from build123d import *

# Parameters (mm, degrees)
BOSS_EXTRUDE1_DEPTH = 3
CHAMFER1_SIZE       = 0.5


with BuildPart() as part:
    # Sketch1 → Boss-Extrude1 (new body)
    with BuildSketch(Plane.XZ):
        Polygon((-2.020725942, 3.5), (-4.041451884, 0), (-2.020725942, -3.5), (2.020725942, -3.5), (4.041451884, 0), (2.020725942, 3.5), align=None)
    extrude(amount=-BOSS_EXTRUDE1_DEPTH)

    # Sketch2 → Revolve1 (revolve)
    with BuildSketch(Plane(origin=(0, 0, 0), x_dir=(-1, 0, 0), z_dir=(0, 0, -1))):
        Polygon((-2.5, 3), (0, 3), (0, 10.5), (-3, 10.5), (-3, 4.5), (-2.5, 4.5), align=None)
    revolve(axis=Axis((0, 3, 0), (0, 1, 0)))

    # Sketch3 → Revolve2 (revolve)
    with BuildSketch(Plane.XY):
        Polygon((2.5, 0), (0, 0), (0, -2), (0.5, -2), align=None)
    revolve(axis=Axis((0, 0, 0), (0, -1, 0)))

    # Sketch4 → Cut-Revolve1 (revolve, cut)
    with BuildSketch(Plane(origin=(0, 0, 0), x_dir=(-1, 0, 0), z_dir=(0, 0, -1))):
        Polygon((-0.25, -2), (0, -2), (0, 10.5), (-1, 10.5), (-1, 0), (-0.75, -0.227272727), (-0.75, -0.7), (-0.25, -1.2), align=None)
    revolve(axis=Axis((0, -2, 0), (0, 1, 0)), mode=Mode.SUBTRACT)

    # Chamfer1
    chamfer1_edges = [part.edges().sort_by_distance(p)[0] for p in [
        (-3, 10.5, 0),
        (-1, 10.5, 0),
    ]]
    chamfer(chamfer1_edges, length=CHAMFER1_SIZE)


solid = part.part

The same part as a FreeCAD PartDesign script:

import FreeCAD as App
import Part
import Sketcher

V = App.Vector
Q = App.Units.Quantity


def edges_at(feature, points):
    """Names of the edges that pass closest to the given points."""
    edges = feature.Shape.Edges
    near = lambda p: min(range(len(edges)), key=lambda i: edges[i].distToShape(Part.Vertex(*p))[0])
    return sorted({f"Edge{near(p) + 1}" for p in points})


def add_polygon(sketch, points):
    """Adds a closed chain of lines whose ends are joined by coincident constraints."""
    first, n = sketch.GeometryCount, len(points)
    for a, b in zip(points, points[1:] + points[:1]):
        sketch.addGeometry(Part.LineSegment(App.Vector(*a, 0), App.Vector(*b, 0)), False)
    for i in range(n):
        sketch.addConstraint(Sketcher.Constraint("Coincident", first + i, 2, first + (i + 1) % n, 1))

doc = App.newDocument("Part")
params = doc.addObject("Spreadsheet::Sheet", "Params")
for row, (alias, value) in enumerate([
    ("pad1_length", "3 mm"),
    ("sketch2_width", "3 mm"),
    ("sketch2_height", "6 mm"),
    ("sketch2_width2", "2.5 mm"),
    ("sketch2_height2", "7.5 mm"),
    ("revolution_angle", "360 deg"),
    ("sketch3_height", "2 mm"),
    ("sketch3_width", "2.5 mm"),
    ("revolution2_angle", "360 deg"),
    ("sketch4_width", "1 mm"),
    ("sketch4_height", "12.5 mm"),
    ("sketch4_height2", "10.5 mm"),
    ("sketch4_height3", "0.8 mm"),
    ("sketch4_width2", "0.25 mm"),
    ("groove_angle", "360 deg"),
    ("chamfer_size", "0.5 mm"),
], start=1):
    params.set(f"A{row}", alias)
    params.set(f"B{row}", "=" + value)
    params.setAlias(f"B{row}", alias)

body = doc.addObject("PartDesign::Body", "Body")

# Sketch on XZ plane
sketch1 = body.newObject("Sketcher::SketchObject", "Sketch")
sketch1.AttachmentSupport = (doc.getObject("XZ_Plane"), [""])
sketch1.MapMode = "FlatFace"
add_polygon(sketch1, [(-2.020726, 3.5), (-4.041452, 0), (-2.020726, -3.5), (2.020726, -3.5), (4.041452, 0), (2.020726, 3.5)])  # lines 0-5
sketch1.addConstraint([
    Sketcher.Constraint("Horizontal", 2),
    Sketcher.Constraint("Horizontal", 5),
    Sketcher.Constraint("Symmetric", 0, 2, 3, 2, -1, 1),
    Sketcher.Constraint("Symmetric", 1, 2, 4, 2, -1, 1),
    Sketcher.Constraint("PointOnObject", 0, 2, -1),
    Sketcher.Constraint("Parallel", 0, 3),
    Sketcher.Constraint("Vertical", 2, 2, 4, 2),
    Sketcher.Constraint("Angle", 0, Q("-120 deg")),
    Sketcher.Constraint("DistanceY", 2, 2, 4, 2, 7.0),
    Sketcher.Constraint("DistanceX", 2, 1, 2, 2, 4.041452),
])
pad1 = body.newObject("PartDesign::Pad", "Pad")
pad1.Profile = sketch1
pad1.setExpression("Length", "Params.pad1_length")
pad1.Reversed = True

# Sketch on XY plane
sketch2 = body.newObject("Sketcher::SketchObject", "Sketch001")
sketch2.AttachmentSupport = (doc.getObject("XY_Plane"), [""])
sketch2.MapMode = "FlatFace"
add_polygon(sketch2, [(2.5, 3), (0, 3), (0, 10.5), (3, 10.5), (3, 4.5), (2.5, 4.5)])  # lines 0-5
sketch2.addConstraint([
    Sketcher.Constraint("Horizontal", 0),
    Sketcher.Constraint("Vertical", 1),
    Sketcher.Constraint("Horizontal", 2),
    Sketcher.Constraint("Vertical", 3),
    Sketcher.Constraint("Horizontal", 4),
    Sketcher.Constraint("Vertical", 5),
    Sketcher.Constraint("PointOnObject", 0, 2, -2),
    Sketcher.Constraint("DistanceX", 2, 1, 2, 2, 3.0),
    Sketcher.Constraint("DistanceY", 3, 2, 3, 1, 6.0),
    Sketcher.Constraint("DistanceX", 0, 2, 0, 1, 2.5),
    Sketcher.Constraint("DistanceY", 1, 1, 1, 2, 7.5),
    Sketcher.Constraint("DistanceY", -1, 1, 0, 2, 3.0),
])
sketch2.setExpression("Constraints[13]", "Params.sketch2_width")
sketch2.setExpression("Constraints[14]", "Params.sketch2_height")
sketch2.setExpression("Constraints[15]", "Params.sketch2_width2")
sketch2.setExpression("Constraints[16]", "Params.sketch2_height2")
revolution = body.newObject("PartDesign::Revolution", "Revolution")
revolution.Profile = sketch2
revolution.ReferenceAxis = (sketch2, ["V_Axis"])
revolution.setExpression("Angle", "Params.revolution_angle")

# Sketch on XY plane
sketch3 = body.newObject("Sketcher::SketchObject", "Sketch002")
sketch3.AttachmentSupport = (doc.getObject("XY_Plane"), [""])
sketch3.MapMode = "FlatFace"
add_polygon(sketch3, [(2.5, 0), (0, 0), (0, -2), (0.5, -2)])  # lines 0-3
sketch3.addConstraint([
    Sketcher.Constraint("Horizontal", 0),
    Sketcher.Constraint("Vertical", 1),
    Sketcher.Constraint("Horizontal", 2),
    Sketcher.Constraint("Coincident", 0, 2, -1, 1),
    Sketcher.Constraint("DistanceY", 1, 2, 1, 1, 2.0),
    Sketcher.Constraint("Angle", 3, Q("45 deg")),
    Sketcher.Constraint("DistanceX", 0, 2, 0, 1, 2.5),
])
sketch3.setExpression("Constraints[8]", "Params.sketch3_height")
sketch3.setExpression("Constraints[10]", "Params.sketch3_width")
revolution2 = body.newObject("PartDesign::Revolution", "Revolution001")
revolution2.Profile = sketch3
revolution2.ReferenceAxis = (sketch3, ["V_Axis"])
revolution2.setExpression("Angle", "Params.revolution2_angle")

# Sketch on XY plane
sketch4 = body.newObject("Sketcher::SketchObject", "Sketch003")
sketch4.AttachmentSupport = (doc.getObject("XY_Plane"), [""])
sketch4.MapMode = "FlatFace"
add_polygon(sketch4, [(0.25, -2), (0, -2), (0, 10.5), (1, 10.5), (1, 0), (0.75, -0.227273), (0.75, -0.7), (0.25, -1.2)])  # lines 0-7
sketch4.addConstraint([
    Sketcher.Constraint("Horizontal", 0),
    Sketcher.Constraint("Vertical", 1),
    Sketcher.Constraint("Horizontal", 2),
    Sketcher.Constraint("Vertical", 3),
    Sketcher.Constraint("Vertical", 5),
    Sketcher.Constraint("Vertical", 7),
    Sketcher.Constraint("PointOnObject", 0, 2, -2),
    Sketcher.Constraint("PointOnObject", 3, 2, -1),
    Sketcher.Constraint("DistanceX", 2, 1, 2, 2, 1.0),
    Sketcher.Constraint("Angle", 6, Q("-135 deg")),
    Sketcher.Constraint("DistanceY", 1, 1, 1, 2, 12.5),
    Sketcher.Constraint("DistanceY", 3, 2, 3, 1, 10.5),
    Sketcher.Constraint("DistanceY", 7, 2, 7, 1, 0.8),
    Sketcher.Constraint("DistanceX", 0, 2, 0, 1, 0.25),
    Sketcher.Constraint("DistanceY", 5, 2, -1, 1, 0.7),
    Sketcher.Constraint("DistanceY", 5, 2, 5, 1, 0.472727),
])
sketch4.setExpression("Constraints[16]", "Params.sketch4_width")
sketch4.setExpression("Constraints[18]", "Params.sketch4_height")
sketch4.setExpression("Constraints[19]", "Params.sketch4_height2")
sketch4.setExpression("Constraints[20]", "Params.sketch4_height3")
sketch4.setExpression("Constraints[21]", "Params.sketch4_width2")
groove = body.newObject("PartDesign::Groove", "Groove")
groove.Profile = sketch4
groove.ReferenceAxis = (sketch4, ["V_Axis"])
groove.setExpression("Angle", "Params.groove_angle")
doc.recompute()

chamfer = body.newObject("PartDesign::Chamfer", "Chamfer")
chamfer.Base = (groove, edges_at(groove, [(-3, 10.5, 0), (-1, 10.5, 0)]))
chamfer.setExpression("Size", "Params.chamfer_size")

doc.recompute()
